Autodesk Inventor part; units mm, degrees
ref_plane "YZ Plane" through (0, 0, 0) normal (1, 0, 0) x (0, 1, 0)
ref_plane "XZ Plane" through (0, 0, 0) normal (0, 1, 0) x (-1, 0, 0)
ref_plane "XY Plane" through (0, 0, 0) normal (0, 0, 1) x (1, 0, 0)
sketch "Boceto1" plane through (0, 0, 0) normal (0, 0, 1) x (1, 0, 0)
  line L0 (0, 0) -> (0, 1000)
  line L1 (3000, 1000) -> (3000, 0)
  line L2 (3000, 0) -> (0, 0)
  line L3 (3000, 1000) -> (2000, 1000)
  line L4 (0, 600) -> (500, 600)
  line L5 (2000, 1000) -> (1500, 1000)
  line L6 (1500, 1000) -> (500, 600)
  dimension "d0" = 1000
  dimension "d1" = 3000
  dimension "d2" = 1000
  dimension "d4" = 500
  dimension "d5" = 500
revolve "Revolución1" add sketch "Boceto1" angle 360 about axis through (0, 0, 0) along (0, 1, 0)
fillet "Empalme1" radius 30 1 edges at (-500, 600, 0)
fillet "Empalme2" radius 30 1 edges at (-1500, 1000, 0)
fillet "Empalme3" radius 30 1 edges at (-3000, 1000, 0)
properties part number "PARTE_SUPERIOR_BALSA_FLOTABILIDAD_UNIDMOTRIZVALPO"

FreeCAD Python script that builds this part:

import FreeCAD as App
import Part
import Sketcher
Q = App.Units.Quantity


def edges_at(feature, points):
    """Names of the edges that pass closest to the given points."""
    edges = feature.Shape.Edges
    near = lambda p: min(range(len(edges)), key=lambda i: edges[i].distToShape(Part.Vertex(*p))[0])
    return sorted({f"Edge{near(p) + 1}" for p in points})

doc = App.newDocument("Part")
body = doc.addObject("PartDesign::Body", "Body")

sketch1 = body.newObject("Sketcher::SketchObject", "Sketch")
sketch1.AttachmentSupport = (doc.getObject("XY_Plane"), [""])
sketch1.MapMode = "FlatFace"
sketch1.addGeometry(Part.LineSegment(App.Vector(0, 600, 0), App.Vector(0, 0, 0)), False)
sketch1.addGeometry(Part.LineSegment(App.Vector(0, 0, 0), App.Vector(3000, 0, 0)), False)
sketch1.addGeometry(Part.LineSegment(App.Vector(3000, 0, 0), App.Vector(3000, 1000, 0)), False)
sketch1.addGeometry(Part.LineSegment(App.Vector(3000, 1000, 0), App.Vector(1500, 1000, 0)), False)
sketch1.addGeometry(Part.LineSegment(App.Vector(1500, 1000, 0), App.Vector(500, 600, 0)), False)
sketch1.addGeometry(Part.LineSegment(App.Vector(500, 600, 0), App.Vector(0, 600, 0)), False)
sketch1.addConstraint(Sketcher.Constraint("Coincident", 0, 2, 1, 1))
sketch1.addConstraint(Sketcher.Constraint("Coincident", 1, 2, 2, 1))
sketch1.addConstraint(Sketcher.Constraint("Coincident", 2, 2, 3, 1))
sketch1.addConstraint(Sketcher.Constraint("Coincident", 3, 2, 4, 1))
sketch1.addConstraint(Sketcher.Constraint("Coincident", 4, 2, 5, 1))
sketch1.addConstraint(Sketcher.Constraint("Coincident", 5, 2, 0, 1))
sketch1.addConstraint(Sketcher.Constraint("Vertical", 0))
sketch1.addConstraint(Sketcher.Constraint("Horizontal", 1))
sketch1.addConstraint(Sketcher.Constraint("Vertical", 2))
sketch1.addConstraint(Sketcher.Constraint("Horizontal", 3))
sketch1.addConstraint(Sketcher.Constraint("Horizontal", 5))
sketch1.addConstraint(Sketcher.Constraint("Coincident", 0, 2, -1, 1))
sketch1.addConstraint(Sketcher.Constraint("DistanceX", 1, 1, 1, 2, Q("3000 mm")))
sketch1.addConstraint(Sketcher.Constraint("DistanceX", 5, 2, 5, 1, Q("500 mm")))
sketch1.addConstraint(Sketcher.Constraint("DistanceY", 2, 1, 2, 2, Q("1000 mm")))
sketch1.addConstraint(Sketcher.Constraint("DistanceX", 4, 2, 3, 2, Q("1000 mm")))
sketch1.addConstraint(Sketcher.Constraint("DistanceY", 0, 2, 0, 1, Q("600 mm")))
revolution = body.newObject("PartDesign::Revolution", "Revolution")
revolution.Profile = sketch1
revolution.ReferenceAxis = (sketch1, ["V_Axis"])
revolution.Angle = 360
doc.recompute()

fillet = body.newObject("PartDesign::Fillet", "Fillet")
fillet.Base = (revolution, edges_at(revolution, [(-500, 600, 0)]))
fillet.Radius = 30
doc.recompute()

fillet2 = body.newObject("PartDesign::Fillet", "Fillet001")
fillet2.Base = (fillet, edges_at(fillet, [(-1500, 1000, 0)]))
fillet2.Radius = 30
doc.recompute()

fillet3 = body.newObject("PartDesign::Fillet", "Fillet002")
fillet3.Base = (fillet2, edges_at(fillet2, [(-3000, 1000, 0)]))
fillet3.Radius = 30

doc.recompute()
